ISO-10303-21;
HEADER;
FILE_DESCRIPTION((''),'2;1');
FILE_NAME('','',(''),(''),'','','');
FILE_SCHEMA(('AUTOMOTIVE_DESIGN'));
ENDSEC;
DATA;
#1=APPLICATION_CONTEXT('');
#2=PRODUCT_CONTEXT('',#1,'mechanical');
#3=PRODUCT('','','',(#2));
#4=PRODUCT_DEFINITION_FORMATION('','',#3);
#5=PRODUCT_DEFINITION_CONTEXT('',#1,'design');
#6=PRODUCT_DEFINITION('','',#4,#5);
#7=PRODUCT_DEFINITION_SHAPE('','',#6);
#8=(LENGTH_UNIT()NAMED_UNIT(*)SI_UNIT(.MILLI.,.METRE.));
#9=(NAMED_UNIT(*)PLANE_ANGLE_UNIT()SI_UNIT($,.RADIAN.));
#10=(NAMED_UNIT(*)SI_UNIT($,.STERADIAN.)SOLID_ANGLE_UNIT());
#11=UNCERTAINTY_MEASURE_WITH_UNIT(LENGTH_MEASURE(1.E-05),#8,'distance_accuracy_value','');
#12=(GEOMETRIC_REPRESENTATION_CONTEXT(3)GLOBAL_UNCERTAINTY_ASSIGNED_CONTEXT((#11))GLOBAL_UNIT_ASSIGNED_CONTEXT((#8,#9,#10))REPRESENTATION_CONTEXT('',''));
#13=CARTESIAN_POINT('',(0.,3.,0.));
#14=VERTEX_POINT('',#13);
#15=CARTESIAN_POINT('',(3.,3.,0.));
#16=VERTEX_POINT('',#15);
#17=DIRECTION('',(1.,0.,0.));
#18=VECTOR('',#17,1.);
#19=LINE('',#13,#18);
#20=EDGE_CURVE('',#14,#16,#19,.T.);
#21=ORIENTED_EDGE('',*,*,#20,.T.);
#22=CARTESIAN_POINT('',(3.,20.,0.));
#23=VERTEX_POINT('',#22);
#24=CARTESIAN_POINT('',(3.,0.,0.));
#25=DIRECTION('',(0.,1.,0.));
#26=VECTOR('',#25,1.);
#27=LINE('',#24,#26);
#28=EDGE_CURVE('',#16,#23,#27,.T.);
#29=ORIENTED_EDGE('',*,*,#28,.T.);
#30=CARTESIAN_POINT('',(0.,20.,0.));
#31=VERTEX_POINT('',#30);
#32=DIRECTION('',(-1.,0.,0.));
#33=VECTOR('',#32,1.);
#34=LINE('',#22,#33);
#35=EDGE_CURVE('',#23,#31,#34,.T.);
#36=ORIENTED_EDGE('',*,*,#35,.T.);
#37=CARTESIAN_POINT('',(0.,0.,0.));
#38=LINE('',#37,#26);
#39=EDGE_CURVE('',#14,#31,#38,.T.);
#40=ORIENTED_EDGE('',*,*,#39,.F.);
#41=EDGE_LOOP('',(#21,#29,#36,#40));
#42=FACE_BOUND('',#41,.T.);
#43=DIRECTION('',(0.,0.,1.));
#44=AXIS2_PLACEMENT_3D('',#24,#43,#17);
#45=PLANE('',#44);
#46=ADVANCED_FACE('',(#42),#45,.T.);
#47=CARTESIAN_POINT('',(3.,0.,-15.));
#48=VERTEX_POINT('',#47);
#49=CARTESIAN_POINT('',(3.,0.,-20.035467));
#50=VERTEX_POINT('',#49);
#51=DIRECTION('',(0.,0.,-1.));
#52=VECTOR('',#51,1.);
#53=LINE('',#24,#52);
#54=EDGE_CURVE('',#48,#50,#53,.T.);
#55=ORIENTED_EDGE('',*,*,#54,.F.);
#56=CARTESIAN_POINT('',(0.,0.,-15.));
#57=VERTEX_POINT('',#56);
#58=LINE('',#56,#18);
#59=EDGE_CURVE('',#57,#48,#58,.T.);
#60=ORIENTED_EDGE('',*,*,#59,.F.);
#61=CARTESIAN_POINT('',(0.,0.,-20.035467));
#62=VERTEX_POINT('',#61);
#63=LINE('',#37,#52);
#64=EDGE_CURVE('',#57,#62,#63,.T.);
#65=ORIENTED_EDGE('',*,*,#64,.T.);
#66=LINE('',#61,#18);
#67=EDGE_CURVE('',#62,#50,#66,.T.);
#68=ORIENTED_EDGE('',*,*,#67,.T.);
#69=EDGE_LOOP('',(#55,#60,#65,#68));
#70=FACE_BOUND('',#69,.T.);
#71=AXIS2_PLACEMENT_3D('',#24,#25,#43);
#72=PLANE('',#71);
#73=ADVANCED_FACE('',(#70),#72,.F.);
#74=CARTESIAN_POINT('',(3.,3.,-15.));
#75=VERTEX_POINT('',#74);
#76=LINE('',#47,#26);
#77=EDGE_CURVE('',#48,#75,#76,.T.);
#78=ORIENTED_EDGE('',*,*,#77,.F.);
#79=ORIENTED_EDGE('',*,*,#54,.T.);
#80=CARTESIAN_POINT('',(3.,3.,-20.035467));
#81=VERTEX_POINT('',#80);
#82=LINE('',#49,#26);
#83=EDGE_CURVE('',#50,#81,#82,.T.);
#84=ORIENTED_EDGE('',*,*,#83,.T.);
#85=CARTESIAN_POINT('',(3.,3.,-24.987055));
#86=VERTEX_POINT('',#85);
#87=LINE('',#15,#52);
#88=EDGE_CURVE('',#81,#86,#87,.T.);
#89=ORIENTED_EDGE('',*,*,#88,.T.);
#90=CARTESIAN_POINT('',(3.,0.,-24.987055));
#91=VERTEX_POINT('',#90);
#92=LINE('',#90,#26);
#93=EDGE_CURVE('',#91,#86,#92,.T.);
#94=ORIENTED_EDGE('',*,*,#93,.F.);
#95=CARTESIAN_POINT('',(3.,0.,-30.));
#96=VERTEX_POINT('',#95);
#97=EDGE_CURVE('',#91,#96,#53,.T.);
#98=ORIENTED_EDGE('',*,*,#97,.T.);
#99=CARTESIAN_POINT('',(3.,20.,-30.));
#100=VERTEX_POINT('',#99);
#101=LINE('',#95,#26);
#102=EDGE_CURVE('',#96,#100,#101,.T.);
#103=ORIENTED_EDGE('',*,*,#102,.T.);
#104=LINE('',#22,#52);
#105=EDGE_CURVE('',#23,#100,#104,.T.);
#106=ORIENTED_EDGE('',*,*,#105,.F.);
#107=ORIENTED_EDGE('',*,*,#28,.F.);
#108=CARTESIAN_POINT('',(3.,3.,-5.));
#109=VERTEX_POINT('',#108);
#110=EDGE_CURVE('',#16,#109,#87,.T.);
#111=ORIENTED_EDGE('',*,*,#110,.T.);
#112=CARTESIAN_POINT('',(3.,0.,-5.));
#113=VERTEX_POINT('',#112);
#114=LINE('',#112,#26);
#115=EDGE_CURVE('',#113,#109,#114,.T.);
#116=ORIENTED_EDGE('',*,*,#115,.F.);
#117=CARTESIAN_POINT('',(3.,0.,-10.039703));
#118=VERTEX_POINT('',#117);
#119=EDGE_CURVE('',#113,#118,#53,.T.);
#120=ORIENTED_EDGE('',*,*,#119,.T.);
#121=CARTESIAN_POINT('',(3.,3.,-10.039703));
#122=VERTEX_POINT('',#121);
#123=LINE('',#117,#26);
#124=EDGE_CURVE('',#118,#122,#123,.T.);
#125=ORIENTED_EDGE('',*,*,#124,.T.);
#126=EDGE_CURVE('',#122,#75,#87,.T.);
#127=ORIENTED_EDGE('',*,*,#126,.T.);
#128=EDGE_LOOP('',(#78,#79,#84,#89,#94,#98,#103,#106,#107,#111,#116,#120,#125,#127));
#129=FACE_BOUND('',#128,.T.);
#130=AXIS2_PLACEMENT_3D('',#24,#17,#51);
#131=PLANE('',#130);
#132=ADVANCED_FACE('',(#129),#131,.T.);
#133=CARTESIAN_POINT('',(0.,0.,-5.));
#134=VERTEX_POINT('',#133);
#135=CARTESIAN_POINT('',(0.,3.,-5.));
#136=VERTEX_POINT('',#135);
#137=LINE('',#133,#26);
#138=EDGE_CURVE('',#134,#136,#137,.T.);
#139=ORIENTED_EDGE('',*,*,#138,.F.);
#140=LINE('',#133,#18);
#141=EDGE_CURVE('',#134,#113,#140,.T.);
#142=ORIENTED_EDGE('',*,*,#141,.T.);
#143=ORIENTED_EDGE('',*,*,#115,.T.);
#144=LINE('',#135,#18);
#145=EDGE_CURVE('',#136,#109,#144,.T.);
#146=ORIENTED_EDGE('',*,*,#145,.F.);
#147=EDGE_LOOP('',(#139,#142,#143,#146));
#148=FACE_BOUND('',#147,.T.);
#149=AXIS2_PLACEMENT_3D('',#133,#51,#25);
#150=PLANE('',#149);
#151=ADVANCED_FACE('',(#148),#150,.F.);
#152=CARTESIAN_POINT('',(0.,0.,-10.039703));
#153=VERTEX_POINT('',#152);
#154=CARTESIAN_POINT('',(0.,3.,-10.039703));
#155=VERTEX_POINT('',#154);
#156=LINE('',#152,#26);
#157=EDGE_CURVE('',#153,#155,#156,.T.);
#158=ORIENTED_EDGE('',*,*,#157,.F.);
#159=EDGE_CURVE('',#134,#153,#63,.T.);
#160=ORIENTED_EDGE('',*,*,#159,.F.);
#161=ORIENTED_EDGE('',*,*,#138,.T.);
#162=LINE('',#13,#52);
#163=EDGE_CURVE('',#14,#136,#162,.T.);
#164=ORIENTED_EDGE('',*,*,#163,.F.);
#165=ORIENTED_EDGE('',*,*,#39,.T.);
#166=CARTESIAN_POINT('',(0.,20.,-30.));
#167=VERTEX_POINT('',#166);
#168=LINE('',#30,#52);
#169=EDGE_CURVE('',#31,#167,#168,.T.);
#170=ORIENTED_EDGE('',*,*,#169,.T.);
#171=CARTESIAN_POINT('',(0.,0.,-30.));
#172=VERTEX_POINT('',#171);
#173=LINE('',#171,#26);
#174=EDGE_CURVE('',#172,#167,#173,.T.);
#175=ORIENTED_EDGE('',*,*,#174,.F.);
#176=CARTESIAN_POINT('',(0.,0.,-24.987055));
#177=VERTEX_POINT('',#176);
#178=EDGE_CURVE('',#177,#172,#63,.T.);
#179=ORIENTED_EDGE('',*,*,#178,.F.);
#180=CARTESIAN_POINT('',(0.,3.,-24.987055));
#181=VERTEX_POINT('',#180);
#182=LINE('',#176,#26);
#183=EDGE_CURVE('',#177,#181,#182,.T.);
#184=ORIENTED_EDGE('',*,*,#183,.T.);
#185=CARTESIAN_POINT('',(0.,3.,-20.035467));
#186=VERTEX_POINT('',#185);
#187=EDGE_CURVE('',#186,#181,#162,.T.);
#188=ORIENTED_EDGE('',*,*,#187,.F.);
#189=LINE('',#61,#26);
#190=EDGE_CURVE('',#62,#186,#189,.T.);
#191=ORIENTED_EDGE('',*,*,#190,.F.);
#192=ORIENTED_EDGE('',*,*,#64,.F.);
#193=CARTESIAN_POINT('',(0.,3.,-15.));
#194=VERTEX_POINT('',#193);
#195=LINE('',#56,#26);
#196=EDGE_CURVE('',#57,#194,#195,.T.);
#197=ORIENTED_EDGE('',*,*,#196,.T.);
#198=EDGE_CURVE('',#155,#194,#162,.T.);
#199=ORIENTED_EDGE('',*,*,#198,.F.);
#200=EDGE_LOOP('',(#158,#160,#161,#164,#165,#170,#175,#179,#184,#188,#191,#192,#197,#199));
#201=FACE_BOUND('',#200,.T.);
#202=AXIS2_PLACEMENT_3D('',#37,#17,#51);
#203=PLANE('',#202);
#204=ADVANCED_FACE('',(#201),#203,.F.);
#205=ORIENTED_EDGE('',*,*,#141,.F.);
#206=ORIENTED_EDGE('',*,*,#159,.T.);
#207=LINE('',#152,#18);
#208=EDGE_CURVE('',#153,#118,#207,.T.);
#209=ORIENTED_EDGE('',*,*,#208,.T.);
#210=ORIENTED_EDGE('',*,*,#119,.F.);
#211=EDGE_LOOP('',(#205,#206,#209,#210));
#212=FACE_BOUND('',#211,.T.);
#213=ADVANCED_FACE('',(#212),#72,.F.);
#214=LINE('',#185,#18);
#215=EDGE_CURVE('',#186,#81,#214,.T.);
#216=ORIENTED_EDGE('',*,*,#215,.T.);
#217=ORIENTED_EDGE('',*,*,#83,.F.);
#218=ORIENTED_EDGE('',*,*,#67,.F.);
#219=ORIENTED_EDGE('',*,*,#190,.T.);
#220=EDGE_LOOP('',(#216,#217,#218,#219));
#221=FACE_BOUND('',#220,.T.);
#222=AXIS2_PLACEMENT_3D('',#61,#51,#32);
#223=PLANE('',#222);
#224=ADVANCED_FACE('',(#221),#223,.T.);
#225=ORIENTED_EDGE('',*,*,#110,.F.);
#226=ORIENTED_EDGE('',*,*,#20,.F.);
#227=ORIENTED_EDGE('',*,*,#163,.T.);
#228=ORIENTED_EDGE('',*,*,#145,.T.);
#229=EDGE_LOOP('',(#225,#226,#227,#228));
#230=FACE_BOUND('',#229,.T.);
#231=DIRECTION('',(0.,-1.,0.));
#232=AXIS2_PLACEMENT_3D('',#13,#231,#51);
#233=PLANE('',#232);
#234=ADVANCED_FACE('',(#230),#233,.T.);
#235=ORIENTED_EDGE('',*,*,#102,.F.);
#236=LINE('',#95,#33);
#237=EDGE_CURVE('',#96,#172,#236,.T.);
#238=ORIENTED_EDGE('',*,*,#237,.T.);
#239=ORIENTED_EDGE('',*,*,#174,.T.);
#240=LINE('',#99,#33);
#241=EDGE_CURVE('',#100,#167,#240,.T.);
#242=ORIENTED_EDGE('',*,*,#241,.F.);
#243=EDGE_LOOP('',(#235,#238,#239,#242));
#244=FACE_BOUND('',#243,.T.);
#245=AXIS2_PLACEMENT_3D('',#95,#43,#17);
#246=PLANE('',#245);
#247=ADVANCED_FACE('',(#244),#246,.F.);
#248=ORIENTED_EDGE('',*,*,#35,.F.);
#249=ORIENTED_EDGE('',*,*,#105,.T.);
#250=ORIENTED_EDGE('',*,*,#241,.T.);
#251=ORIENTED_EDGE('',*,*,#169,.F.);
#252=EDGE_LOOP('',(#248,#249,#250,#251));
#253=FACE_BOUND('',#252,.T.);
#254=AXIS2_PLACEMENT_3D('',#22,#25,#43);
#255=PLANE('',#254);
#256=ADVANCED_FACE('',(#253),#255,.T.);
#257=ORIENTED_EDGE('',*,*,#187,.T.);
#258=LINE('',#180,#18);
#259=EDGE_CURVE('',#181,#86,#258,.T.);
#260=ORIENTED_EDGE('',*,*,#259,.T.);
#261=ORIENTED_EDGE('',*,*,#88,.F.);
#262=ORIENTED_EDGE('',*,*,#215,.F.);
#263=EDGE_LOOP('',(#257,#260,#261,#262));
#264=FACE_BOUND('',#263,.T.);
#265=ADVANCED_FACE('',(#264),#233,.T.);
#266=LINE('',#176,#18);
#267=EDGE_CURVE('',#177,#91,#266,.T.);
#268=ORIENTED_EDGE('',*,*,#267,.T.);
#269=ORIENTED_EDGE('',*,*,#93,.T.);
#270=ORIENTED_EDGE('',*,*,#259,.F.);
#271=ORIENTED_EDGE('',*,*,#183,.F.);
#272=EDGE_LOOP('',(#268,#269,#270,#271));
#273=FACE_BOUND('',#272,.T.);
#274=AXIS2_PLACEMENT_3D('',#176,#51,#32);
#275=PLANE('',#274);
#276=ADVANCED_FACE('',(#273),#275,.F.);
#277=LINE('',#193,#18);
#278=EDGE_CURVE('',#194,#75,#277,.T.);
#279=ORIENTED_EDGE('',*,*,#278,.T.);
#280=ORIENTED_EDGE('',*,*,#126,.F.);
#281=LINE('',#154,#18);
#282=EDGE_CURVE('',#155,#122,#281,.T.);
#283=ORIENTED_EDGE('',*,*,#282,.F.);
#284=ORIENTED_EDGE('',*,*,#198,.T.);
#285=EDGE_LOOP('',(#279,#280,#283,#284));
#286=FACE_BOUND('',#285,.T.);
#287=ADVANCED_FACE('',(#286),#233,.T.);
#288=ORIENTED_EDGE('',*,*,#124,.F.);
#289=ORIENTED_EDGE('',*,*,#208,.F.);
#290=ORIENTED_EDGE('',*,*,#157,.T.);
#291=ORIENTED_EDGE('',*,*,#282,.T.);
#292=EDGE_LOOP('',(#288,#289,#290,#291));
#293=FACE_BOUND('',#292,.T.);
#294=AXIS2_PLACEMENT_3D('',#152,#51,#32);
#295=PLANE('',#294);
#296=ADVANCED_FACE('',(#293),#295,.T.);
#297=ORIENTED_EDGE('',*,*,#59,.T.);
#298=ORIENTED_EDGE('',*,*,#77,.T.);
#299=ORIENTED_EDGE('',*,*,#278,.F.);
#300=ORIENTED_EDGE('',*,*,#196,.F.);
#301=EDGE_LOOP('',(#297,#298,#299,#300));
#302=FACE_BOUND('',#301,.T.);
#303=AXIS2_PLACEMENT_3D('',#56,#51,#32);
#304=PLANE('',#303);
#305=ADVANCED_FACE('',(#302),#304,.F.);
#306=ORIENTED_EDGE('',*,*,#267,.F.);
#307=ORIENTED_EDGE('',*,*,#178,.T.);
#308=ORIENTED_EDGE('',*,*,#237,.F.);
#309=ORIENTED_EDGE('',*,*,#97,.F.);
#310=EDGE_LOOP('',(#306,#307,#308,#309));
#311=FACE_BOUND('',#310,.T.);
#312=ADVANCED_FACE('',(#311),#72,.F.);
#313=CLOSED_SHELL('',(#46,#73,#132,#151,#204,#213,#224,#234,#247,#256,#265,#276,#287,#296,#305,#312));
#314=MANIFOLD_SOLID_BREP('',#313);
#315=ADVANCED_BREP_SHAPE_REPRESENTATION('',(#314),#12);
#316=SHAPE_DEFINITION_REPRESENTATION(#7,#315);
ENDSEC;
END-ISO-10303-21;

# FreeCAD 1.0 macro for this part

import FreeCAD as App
import Part
import Sketcher

V = App.Vector
Q = App.Units.Quantity


def add_polygon(sketch, points):
    """Adds a closed chain of lines whose ends are joined by coincident constraints."""
    first, n = sketch.GeometryCount, len(points)
    for a, b in zip(points, points[1:] + points[:1]):
        sketch.addGeometry(Part.LineSegment(App.Vector(*a, 0), App.Vector(*b, 0)), False)
    for i in range(n):
        sketch.addConstraint(Sketcher.Constraint("Coincident", first + i, 2, first + (i + 1) % n, 1))

doc = App.newDocument("Part")
body = doc.addObject("PartDesign::Body", "Body")

sketch1 = body.newObject("Sketcher::SketchObject", "Sketch")
sketch1.AttachmentSupport = (doc.getObject("YZ_Plane"), [""])
sketch1.MapMode = "FlatFace"
add_polygon(sketch1, [(20, 0), (0, 0), (0, -30), (20, -30)])
sketch1.addConstraint(Sketcher.Constraint("Horizontal", 0))
sketch1.addConstraint(Sketcher.Constraint("Vertical", 1))
sketch1.addConstraint(Sketcher.Constraint("Horizontal", 2))
sketch1.addConstraint(Sketcher.Constraint("Vertical", 3))
sketch1.addConstraint(Sketcher.Constraint("Coincident", 0, 2, -1, 1))
sketch1.addConstraint(Sketcher.Constraint("DistanceX", 0, 2, 0, 1, Q("20 mm")))
sketch1.addConstraint(Sketcher.Constraint("DistanceY", 1, 2, 1, 1, Q("30 mm")))
pad1 = body.newObject("PartDesign::Pad", "Pad")
pad1.Profile = sketch1
pad1.Length = 3

sketch2 = body.newObject("Sketcher::SketchObject", "Sketch001")
sketch2.AttachmentSupport = (doc.getObject("YZ_Plane"), [""])
sketch2.MapMode = "FlatFace"
sketch2.AttachmentOffset = App.Placement(V(0, 0, 3), App.Rotation())
add_polygon(sketch2, [(3, 0), (0, 0), (0, -5), (3, -5)])
add_polygon(sketch2, [(3, -10.039703), (0, -10.039703), (0, -15), (3, -15)])
add_polygon(sketch2, [(3, -20.035467), (0, -20.035467), (0, -24.987055), (3, -24.987055)])
sketch2.addConstraint(Sketcher.Constraint("Horizontal", 0))
sketch2.addConstraint(Sketcher.Constraint("Vertical", 1))
sketch2.addConstraint(Sketcher.Constraint("Horizontal", 2))
sketch2.addConstraint(Sketcher.Constraint("Vertical", 3))
sketch2.addConstraint(Sketcher.Constraint("Horizontal", 4))
sketch2.addConstraint(Sketcher.Constraint("Vertical", 5))
sketch2.addConstraint(Sketcher.Constraint("Horizontal", 6))
sketch2.addConstraint(Sketcher.Constraint("Vertical", 7))
sketch2.addConstraint(Sketcher.Constraint("Horizontal", 8))
sketch2.addConstraint(Sketcher.Constraint("Vertical", 9))
sketch2.addConstraint(Sketcher.Constraint("Horizontal", 10))
sketch2.addConstraint(Sketcher.Constraint("Vertical", 11))
sketch2.addConstraint(Sketcher.Constraint("Coincident", 0, 2, -1, 1))
sketch2.addConstraint(Sketcher.Constraint("PointOnObject", 4, 2, -2))
sketch2.addConstraint(Sketcher.Constraint("PointOnObject", 8, 2, -2))
sketch2.addConstraint(Sketcher.Constraint("Vertical", 3, 2, 6, 2))
sketch2.addConstraint(Sketcher.Constraint("Vertical", 7, 2, 10, 2))
sketch2.addConstraint(Sketcher.Constraint("DistanceX", 0, 2, 0, 1, Q("3 mm")))
sketch2.addConstraint(Sketcher.Constraint("DistanceY", 1, 2, 1, 1, Q("5 mm")))
sketch2.addConstraint(Sketcher.Constraint("DistanceY", 5, 2, -1, 1, Q("15 mm")))
sketch2.addConstraint(Sketcher.Constraint("DistanceY", 9, 2, 9, 1, Q("4.951589 mm")))
sketch2.addConstraint(Sketcher.Constraint("DistanceY", 5, 2, 5, 1, Q("4.960297 mm")))
sketch2.addConstraint(Sketcher.Constraint("DistanceY", 8, 2, -1, 1, Q("20.035467 mm")))
pocket1 = body.newObject("PartDesign::Pocket", "Pocket")
pocket1.Profile = sketch2
pocket1.Length = 3

doc.recompute()
